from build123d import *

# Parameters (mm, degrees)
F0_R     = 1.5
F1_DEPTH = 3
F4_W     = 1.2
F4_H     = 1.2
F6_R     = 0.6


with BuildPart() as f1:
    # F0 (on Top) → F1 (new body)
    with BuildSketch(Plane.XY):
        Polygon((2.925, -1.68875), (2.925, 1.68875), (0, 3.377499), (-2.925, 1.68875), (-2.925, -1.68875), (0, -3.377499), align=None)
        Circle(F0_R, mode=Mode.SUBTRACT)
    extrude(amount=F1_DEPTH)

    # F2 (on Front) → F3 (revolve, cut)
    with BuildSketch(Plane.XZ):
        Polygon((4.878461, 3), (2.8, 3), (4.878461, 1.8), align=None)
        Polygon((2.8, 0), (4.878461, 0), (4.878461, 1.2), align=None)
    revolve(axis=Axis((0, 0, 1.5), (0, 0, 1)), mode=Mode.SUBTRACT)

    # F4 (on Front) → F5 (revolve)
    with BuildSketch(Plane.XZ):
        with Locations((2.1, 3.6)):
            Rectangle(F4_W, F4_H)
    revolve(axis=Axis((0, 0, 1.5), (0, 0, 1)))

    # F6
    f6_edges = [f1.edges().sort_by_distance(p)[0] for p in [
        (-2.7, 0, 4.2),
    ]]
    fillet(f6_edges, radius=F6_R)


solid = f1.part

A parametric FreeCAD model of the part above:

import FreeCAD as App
import Part
import Sketcher
Q = App.Units.Quantity


def edges_at(feature, points):
    """Names of the edges that pass closest to the given points."""
    edges = feature.Shape.Edges
    near = lambda p: min(range(len(edges)), key=lambda i: edges[i].distToShape(Part.Vertex(*p))[0])
    return sorted({f"Edge{near(p) + 1}" for p in points})


def add_polygon(sketch, points):
    """Adds a closed chain of lines whose ends are joined by coincident constraints."""
    first, n = sketch.GeometryCount, len(points)
    for a, b in zip(points, points[1:] + points[:1]):
        sketch.addGeometry(Part.LineSegment(App.Vector(*a, 0), App.Vector(*b, 0)), False)
    for i in range(n):
        sketch.addConstraint(Sketcher.Constraint("Coincident", first + i, 2, first + (i + 1) % n, 1))

doc = App.newDocument("Part")
body = doc.addObject("PartDesign::Body", "Body")

sketch1 = body.newObject("Sketcher::SketchObject", "Sketch")
sketch1.AttachmentSupport = (doc.getObject("XY_Plane"), [""])
sketch1.MapMode = "FlatFace"
add_polygon(sketch1, [(2.9, -1.7), (2.9, 1.7), (0, 3.4), (-2.9, 1.7), (-2.9, -1.7), (0, -3.4)])
sketch1.addGeometry(Part.Circle(App.Vector(0, 0, 0), App.Vector(0, 0, 1), 1.5), False)
sketch1.addConstraint([
    Sketcher.Constraint("Vertical", 0),
    Sketcher.Constraint("Vertical", 3),
    Sketcher.Constraint("Coincident", 6, 3, -1, 1),
    Sketcher.Constraint("Symmetric", 0, 2, 3, 2, -1, 1),
    Sketcher.Constraint("Symmetric", 1, 2, 4, 2, -1, 1),
    Sketcher.Constraint("PointOnObject", 1, 2, -2),
    Sketcher.Constraint("Parallel", 2, 5),
    Sketcher.Constraint("Horizontal", 0, 2, 2, 2),
    Sketcher.Constraint("Diameter", 6, Q("3 mm")),
    Sketcher.Constraint("Angle", 1, Q("150.000008 deg")),
    Sketcher.Constraint("DistanceX", 2, 2, 0, 2, Q("5.85 mm")),
    Sketcher.Constraint("DistanceY", 0, 1, 0, 2, Q("3.3775 mm")),
])
pad1 = body.newObject("PartDesign::Pad", "Pad")
pad1.Profile = sketch1
pad1.Length = 3

sketch2 = body.newObject("Sketcher::SketchObject", "Sketch001")
sketch2.AttachmentSupport = (doc.getObject("XZ_Plane"), [""])
sketch2.MapMode = "FlatFace"
add_polygon(sketch2, [(4.9, 3), (2.8, 3), (4.9, 1.8)])
add_polygon(sketch2, [(2.8, 0), (4.9, 0), (4.9, 1.2)])
sketch2.addConstraint([
    Sketcher.Constraint("Horizontal", 0),
    Sketcher.Constraint("Vertical", 2),
    Sketcher.Constraint("Horizontal", 3),
    Sketcher.Constraint("Vertical", 4),
    Sketcher.Constraint("PointOnObject", 3, 2, -1),
    Sketcher.Constraint("Vertical", 2, 2, 3, 2),
    Sketcher.Constraint("Vertical", 0, 2, 5, 2),
    Sketcher.Constraint("Equal", 2, 4),
    Sketcher.Constraint("Angle", 1, Q("-30 deg")),
    Sketcher.Constraint("DistanceY", 2, 1, 2, 2, Q("1.2 mm")),
    Sketcher.Constraint("DistanceY", -1, 1, 0, 2, Q("3 mm")),
    Sketcher.Constraint("DistanceX", -1, 1, 0, 2, Q("2.8 mm")),
])
groove = body.newObject("PartDesign::Groove", "Groove")
groove.Profile = sketch2
groove.ReferenceAxis = (sketch2, ["V_Axis"])
groove.Angle = 360

sketch3 = body.newObject("Sketcher::SketchObject", "Sketch002")
sketch3.AttachmentSupport = (doc.getObject("XZ_Plane"), [""])
sketch3.MapMode = "FlatFace"
add_polygon(sketch3, [(1.5, 4.2), (1.5, 3), (2.7, 3), (2.7, 4.2)])
sketch3.addConstraint([
    Sketcher.Constraint("Vertical", 0),
    Sketcher.Constraint("Horizontal", 1),
    Sketcher.Constraint("Vertical", 2),
    Sketcher.Constraint("Horizontal", 3),
    Sketcher.Constraint("Equal", 3, 0),
    Sketcher.Constraint("DistanceX", 1, 1, 1, 2, Q("1.2 mm")),
    Sketcher.Constraint("DistanceY", -1, 1, 0, 2, Q("3 mm")),
    Sketcher.Constraint("DistanceX", -1, 1, 0, 2, Q("1.5 mm")),
])
revolution = body.newObject("PartDesign::Revolution", "Revolution")
revolution.Profile = sketch3
revolution.ReferenceAxis = (sketch3, ["V_Axis"])
revolution.Angle = 360
doc.recompute()

fillet = body.newObject("PartDesign::Fillet", "Fillet")
fillet.Base = (revolution, edges_at(revolution, [(-2.7, 0, 4.2)]))
fillet.Radius = 0.6

doc.recompute()
